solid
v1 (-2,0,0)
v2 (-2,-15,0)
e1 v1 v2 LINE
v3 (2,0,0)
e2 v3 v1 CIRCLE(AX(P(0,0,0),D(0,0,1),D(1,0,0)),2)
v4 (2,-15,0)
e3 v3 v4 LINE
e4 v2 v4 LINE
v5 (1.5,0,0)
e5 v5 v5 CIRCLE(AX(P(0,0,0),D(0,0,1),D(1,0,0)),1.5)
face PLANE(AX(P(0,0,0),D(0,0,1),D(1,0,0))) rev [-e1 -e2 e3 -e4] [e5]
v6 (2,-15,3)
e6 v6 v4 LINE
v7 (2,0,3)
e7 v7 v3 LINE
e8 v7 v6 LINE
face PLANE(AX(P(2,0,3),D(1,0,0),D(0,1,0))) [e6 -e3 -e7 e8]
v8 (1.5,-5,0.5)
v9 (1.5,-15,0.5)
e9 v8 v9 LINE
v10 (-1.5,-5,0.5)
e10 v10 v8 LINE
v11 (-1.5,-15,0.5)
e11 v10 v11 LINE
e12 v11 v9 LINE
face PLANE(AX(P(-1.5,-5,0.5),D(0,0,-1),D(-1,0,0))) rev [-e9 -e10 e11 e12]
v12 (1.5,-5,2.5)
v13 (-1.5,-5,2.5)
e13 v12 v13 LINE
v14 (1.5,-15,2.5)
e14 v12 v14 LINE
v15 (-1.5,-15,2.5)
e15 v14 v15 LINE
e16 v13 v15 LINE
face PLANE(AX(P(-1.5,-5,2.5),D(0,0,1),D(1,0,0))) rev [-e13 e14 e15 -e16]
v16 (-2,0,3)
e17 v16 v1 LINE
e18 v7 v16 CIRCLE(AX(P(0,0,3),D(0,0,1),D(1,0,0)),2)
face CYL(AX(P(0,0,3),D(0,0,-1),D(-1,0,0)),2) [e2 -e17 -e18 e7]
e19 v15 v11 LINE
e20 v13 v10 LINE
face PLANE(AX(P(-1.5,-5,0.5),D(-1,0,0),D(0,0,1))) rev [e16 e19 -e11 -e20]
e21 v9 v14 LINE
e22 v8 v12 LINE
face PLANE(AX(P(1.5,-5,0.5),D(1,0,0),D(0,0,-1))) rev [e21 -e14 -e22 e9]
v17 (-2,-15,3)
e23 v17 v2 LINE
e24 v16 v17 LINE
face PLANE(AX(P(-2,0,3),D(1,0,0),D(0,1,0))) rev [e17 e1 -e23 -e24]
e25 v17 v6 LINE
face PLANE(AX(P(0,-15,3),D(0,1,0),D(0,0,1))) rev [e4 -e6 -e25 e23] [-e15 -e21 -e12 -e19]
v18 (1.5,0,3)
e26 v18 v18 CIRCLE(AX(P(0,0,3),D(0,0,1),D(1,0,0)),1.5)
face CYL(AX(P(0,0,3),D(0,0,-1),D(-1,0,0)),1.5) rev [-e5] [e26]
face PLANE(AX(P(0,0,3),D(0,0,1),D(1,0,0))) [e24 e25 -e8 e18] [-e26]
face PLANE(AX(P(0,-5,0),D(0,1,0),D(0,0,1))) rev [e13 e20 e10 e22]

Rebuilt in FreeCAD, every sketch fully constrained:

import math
import FreeCAD as App
import Part
import Sketcher
from FreeCAD import Vector
Q = App.Units.Quantity


def add_polygon(sketch, points):
    """Adds a closed chain of lines whose ends are joined by coincident constraints."""
    first, n = sketch.GeometryCount, len(points)
    for a, b in zip(points, points[1:] + points[:1]):
        sketch.addGeometry(Part.LineSegment(App.Vector(*a, 0), App.Vector(*b, 0)), False)
    for i in range(n):
        sketch.addConstraint(Sketcher.Constraint("Coincident", first + i, 2, first + (i + 1) % n, 1))

doc = App.newDocument("Part")
body = doc.addObject("PartDesign::Body", "Body")

# Sketch on XY plane
sketch1 = body.newObject("Sketcher::SketchObject", "Sketch")
sketch1.AttachmentSupport = (doc.getObject("XY_Plane"), [""])
sketch1.MapMode = "FlatFace"
sketch1.addGeometry([
    Part.LineSegment(Vector(-2, 0, 0), Vector(-2, -15, 0)),  # 0
    Part.LineSegment(Vector(-2, -15, 0), Vector(2, -15, 0)),  # 1
    Part.LineSegment(Vector(2, -15, 0), Vector(2, 0, 0)),  # 2
    Part.ArcOfCircle(Part.Circle(Vector(0, 0, 0), Vector(0, 0, 1), 2), math.radians(0), math.radians(180)),  # 3
    Part.Circle(Vector(0, 0, 0), Vector(0, 0, 1), 1.5),  # 4
], False)
sketch1.addConstraint([
    Sketcher.Constraint("Coincident", 0, 2, 1, 1),
    Sketcher.Constraint("Coincident", 1, 2, 2, 1),
    Sketcher.Constraint("Tangent", 2, 2, 3, 1),
    Sketcher.Constraint("Tangent", 3, 2, 0, 1),
    Sketcher.Constraint("Vertical", 0),
    Sketcher.Constraint("Horizontal", 1),
    Sketcher.Constraint("Vertical", 2),
    Sketcher.Constraint("Coincident", 3, 3, -1, 1),
    Sketcher.Constraint("Coincident", 4, 3, -1, 1),
    Sketcher.Constraint("Diameter", 4, Q("3 mm")),
    Sketcher.Constraint("Radius", 3, Q("2 mm")),
    Sketcher.Constraint("DistanceY", 0, 2, 0, 1, Q("15 mm")),
])
pad1 = body.newObject("PartDesign::Pad", "Pad")
pad1.Profile = sketch1
pad1.Length = 3

# Sketch on XZ plane
sketch2 = body.newObject("Sketcher::SketchObject", "Sketch001")
sketch2.AttachmentSupport = (doc.getObject("XZ_Plane"), [""])
sketch2.MapMode = "FlatFace"
sketch2.AttachmentOffset = App.Placement(Vector(0, 0, 15), App.Rotation())
add_polygon(sketch2, [(-1.5, 2.5), (-1.5, 0.5), (1.5, 0.5), (1.5, 2.5)])  # lines 0-3
sketch2.addConstraint([
    Sketcher.Constraint("Vertical", 0),
    Sketcher.Constraint("Horizontal", 1),
    Sketcher.Constraint("Vertical", 2),
    Sketcher.Constraint("Horizontal", 3),
    Sketcher.Constraint("DistanceX", 1, 1, 1, 2, Q("3 mm")),
    Sketcher.Constraint("DistanceY", 0, 2, 0, 1, Q("2 mm")),
    Sketcher.Constraint("DistanceX", 0, 2, -1, 1, Q("1.5 mm")),
    Sketcher.Constraint("DistanceY", -1, 1, 0, 2, Q("0.5 mm")),
])
pocket1 = body.newObject("PartDesign::Pocket", "Pocket")
pocket1.Profile = sketch2
pocket1.Length = 10

doc.recompute()
